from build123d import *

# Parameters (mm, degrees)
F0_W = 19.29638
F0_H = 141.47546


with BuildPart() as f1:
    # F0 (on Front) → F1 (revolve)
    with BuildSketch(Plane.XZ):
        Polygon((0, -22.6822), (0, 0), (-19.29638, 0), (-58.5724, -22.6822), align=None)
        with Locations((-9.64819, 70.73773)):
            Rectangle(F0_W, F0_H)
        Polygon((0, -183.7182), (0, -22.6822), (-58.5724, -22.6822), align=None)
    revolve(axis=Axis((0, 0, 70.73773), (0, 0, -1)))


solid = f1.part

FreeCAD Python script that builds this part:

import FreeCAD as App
import Part
import Sketcher
from FreeCAD import Vector
Q = App.Units.Quantity


def add_polygon(sketch, points):
    """Adds a closed chain of lines whose ends are joined by coincident constraints."""
    first, n = sketch.GeometryCount, len(points)
    for a, b in zip(points, points[1:] + points[:1]):
        sketch.addGeometry(Part.LineSegment(App.Vector(*a, 0), App.Vector(*b, 0)), False)
    for i in range(n):
        sketch.addConstraint(Sketcher.Constraint("Coincident", first + i, 2, first + (i + 1) % n, 1))

doc = App.newDocument("Part")
params = doc.addObject("Spreadsheet::Sheet", "Params")
for row, (alias, value) in enumerate([
    ("revolution_angle", "360 deg"),
], start=1):
    params.set(f"A{row}", alias)
    params.set(f"B{row}", "=" + value)
    params.setAlias(f"B{row}", alias)

body = doc.addObject("PartDesign::Body", "Body")

# Sketch on XZ plane
sketch1 = body.newObject("Sketcher::SketchObject", "Sketch")
sketch1.AttachmentSupport = (doc.getObject("XZ_Plane"), [""])
sketch1.MapMode = "FlatFace"
add_polygon(sketch1, [(0, 141.47546), (-19.29638, 141.47546), (-19.29638, 0), (-58.5724, -22.6822), (0, -183.7182)])  # lines 0-4
sketch1.addConstraint(Sketcher.Constraint("Horizontal", 0))
sketch1.addConstraint(Sketcher.Constraint("Vertical", 1))
sketch1.addConstraint(Sketcher.Constraint("Vertical", 4))
sketch1.addConstraint(Sketcher.Constraint("PointOnObject", 1, 2, -1))
sketch1.addConstraint(Sketcher.Constraint("PointOnObject", 3, 2, -2))
sketch1.addConstraint(Sketcher.Constraint("DistanceY", 3, 2, 2, 2, Q("161.036 mm")))
sketch1.addConstraint(Sketcher.Constraint("DistanceX", 0, 2, 0, 1, Q("19.29638 mm")))
sketch1.addConstraint(Sketcher.Constraint("DistanceY", 1, 2, 1, 1, Q("141.47546 mm")))
sketch1.addConstraint(Sketcher.Constraint("DistanceY", 4, 1, 4, 2, Q("325.19366 mm")))
sketch1.addConstraint(Sketcher.Constraint("DistanceX", 2, 2, -1, 1, Q("58.5724 mm")))
revolution = body.newObject("PartDesign::Revolution", "Revolution")
revolution.Profile = sketch1
revolution.ReferenceAxis = (sketch1, ["V_Axis"])
revolution.setExpression("Angle", "Params.revolution_angle")

doc.recompute()
